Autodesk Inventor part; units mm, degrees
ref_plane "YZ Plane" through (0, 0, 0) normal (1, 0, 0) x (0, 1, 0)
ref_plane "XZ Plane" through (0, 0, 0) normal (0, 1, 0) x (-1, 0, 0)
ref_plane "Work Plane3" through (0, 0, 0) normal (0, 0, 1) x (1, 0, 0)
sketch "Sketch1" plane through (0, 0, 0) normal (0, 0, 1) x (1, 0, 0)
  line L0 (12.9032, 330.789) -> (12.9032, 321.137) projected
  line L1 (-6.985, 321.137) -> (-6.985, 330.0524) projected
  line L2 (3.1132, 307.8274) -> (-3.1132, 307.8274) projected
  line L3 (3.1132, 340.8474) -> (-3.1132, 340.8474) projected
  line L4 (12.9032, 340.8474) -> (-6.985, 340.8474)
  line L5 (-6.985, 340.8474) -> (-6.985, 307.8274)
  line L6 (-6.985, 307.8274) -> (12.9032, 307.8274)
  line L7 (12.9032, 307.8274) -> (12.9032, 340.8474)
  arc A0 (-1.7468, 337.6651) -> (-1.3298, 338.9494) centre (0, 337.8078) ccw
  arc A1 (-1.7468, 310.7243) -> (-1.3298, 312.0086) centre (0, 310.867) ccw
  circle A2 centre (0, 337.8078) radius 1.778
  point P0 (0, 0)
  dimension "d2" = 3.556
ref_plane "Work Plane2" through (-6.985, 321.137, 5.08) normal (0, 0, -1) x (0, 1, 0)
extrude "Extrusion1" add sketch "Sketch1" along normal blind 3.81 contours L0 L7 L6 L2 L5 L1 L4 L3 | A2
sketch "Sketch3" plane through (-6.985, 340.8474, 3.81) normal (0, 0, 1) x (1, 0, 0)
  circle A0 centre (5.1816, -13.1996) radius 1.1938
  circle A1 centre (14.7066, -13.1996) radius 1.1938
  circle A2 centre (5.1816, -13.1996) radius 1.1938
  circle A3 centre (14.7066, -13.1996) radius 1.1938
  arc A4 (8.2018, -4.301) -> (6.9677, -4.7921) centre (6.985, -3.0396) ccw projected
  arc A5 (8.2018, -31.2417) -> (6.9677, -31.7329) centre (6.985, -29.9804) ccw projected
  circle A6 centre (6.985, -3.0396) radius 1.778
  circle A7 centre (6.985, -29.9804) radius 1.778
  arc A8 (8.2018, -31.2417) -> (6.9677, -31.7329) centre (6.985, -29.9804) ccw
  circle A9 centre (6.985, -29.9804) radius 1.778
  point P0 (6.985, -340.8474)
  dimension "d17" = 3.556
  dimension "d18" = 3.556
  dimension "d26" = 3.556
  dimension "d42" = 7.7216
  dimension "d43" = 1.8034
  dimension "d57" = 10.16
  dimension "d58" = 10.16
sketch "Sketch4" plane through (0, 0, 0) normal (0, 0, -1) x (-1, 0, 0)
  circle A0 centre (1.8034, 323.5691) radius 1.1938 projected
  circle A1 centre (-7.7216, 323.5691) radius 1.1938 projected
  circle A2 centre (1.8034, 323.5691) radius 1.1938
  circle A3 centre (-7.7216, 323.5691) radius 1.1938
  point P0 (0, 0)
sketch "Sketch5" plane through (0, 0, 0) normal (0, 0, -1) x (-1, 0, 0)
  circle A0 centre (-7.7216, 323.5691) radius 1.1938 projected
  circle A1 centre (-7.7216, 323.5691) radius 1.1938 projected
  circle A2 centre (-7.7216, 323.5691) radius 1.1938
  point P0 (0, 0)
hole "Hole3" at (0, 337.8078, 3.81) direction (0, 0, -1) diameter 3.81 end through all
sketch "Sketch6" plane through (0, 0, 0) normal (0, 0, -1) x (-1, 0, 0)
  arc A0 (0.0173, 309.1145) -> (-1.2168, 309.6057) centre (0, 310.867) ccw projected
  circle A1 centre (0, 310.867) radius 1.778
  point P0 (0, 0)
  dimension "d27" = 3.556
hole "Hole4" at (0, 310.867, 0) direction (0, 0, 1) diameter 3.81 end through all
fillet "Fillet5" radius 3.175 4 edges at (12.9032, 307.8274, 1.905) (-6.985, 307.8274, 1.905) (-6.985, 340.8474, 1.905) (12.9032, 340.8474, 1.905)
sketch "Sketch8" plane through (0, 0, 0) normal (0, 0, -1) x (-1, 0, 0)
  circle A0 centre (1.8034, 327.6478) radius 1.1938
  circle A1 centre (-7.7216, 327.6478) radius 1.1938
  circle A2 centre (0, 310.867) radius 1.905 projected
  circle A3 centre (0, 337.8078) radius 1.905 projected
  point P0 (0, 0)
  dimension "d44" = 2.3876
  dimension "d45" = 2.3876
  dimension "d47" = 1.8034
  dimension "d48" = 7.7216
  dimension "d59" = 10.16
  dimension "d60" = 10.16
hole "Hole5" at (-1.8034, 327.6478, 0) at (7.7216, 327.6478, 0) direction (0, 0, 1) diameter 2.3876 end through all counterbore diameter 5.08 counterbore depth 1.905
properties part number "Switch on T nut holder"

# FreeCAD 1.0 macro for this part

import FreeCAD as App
import Part
import Sketcher
from FreeCAD import Vector
Q = App.Units.Quantity


def edges_at(feature, points):
    """Names of the edges that pass closest to the given points."""
    edges = feature.Shape.Edges
    near = lambda p: min(range(len(edges)), key=lambda i: edges[i].distToShape(Part.Vertex(*p))[0])
    return sorted({f"Edge{near(p) + 1}" for p in points})

doc = App.newDocument("Part")
body = doc.addObject("PartDesign::Body", "Body")

# Sketch on XY plane
sketch1 = body.newObject("Sketcher::SketchObject", "Sketch")
sketch1.AttachmentSupport = (doc.getObject("XY_Plane"), [""])
sketch1.MapMode = "FlatFace"
sketch1.addGeometry([
    Part.LineSegment(Vector(12.9032, 340.8474, 0), Vector(-6.985, 340.8474, 0)),
    Part.LineSegment(Vector(-6.985, 340.8474, 0), Vector(-6.985, 307.8274, 0)),
    Part.LineSegment(Vector(-6.985, 307.8274, 0), Vector(12.9032, 307.8274, 0)),
    Part.LineSegment(Vector(12.9032, 307.8274, 0), Vector(12.9032, 340.8474, 0)),
], False)
sketch1.addConstraint([
    Sketcher.Constraint("Coincident", 0, 2, 1, 1),
    Sketcher.Constraint("Coincident", 1, 2, 2, 1),
    Sketcher.Constraint("Coincident", 2, 2, 3, 1),
    Sketcher.Constraint("Coincident", 3, 2, 0, 1),
    Sketcher.Constraint("Horizontal", 0),
    Sketcher.Constraint("Vertical", 1),
    Sketcher.Constraint("Horizontal", 2),
    Sketcher.Constraint("Vertical", 3),
    Sketcher.Constraint("DistanceY", 1, 2, 1, 1, Q("1.3 in")),
    Sketcher.Constraint("DistanceX", 0, 2, 0, 1, Q("0.783 in")),
    Sketcher.Constraint("DistanceX", 0, 2, -1, 1, Q("0.275 in")),
    Sketcher.Constraint("DistanceY", -1, 1, 0, 2, Q("13.4192 in")),
])
pad1 = body.newObject("PartDesign::Pad", "Pad")
pad1.Profile = sketch1
pad1.Length = Q("0.15 in")

# Sketch on XY plane
sketch2 = body.newObject("Sketcher::SketchObject", "Sketch001")
sketch2.AttachmentSupport = (doc.getObject("XY_Plane"), [""])
sketch2.MapMode = "FlatFace"
sketch2.AttachmentOffset = App.Placement(Vector(0, 0, 0.15 * 25.4), App.Rotation())
sketch2.addGeometry(Part.Circle(Vector(0, 337.8078, 0), Vector(0, 0, 1), 1.905), False)
sketch2.addConstraint([
    Sketcher.Constraint("PointOnObject", 0, 3, -2),
    Sketcher.Constraint("Diameter", 0, Q("0.15 in")),
    Sketcher.Constraint("DistanceY", -1, 1, 0, 3, Q("337.8078 mm")),
])
doc.recompute()
hole = body.newObject("PartDesign::Hole", "Hole")
hole.Profile = sketch2
hole.ThreadType = "None"
hole.Diameter = Q("0.15 in")
hole.DepthType = "ThroughAll"

# Sketch on XY plane
sketch3 = body.newObject("Sketcher::SketchObject", "Sketch002")
sketch3.AttachmentSupport = (doc.getObject("XY_Plane"), [""])
sketch3.MapMode = "FlatFace"
sketch3.addGeometry(Part.Circle(Vector(0, 310.867, 0), Vector(0, 0, 1), 1.905), False)
sketch3.addConstraint([
    Sketcher.Constraint("PointOnObject", 0, 3, -2),
    Sketcher.Constraint("Diameter", 0, Q("0.15 in")),
    Sketcher.Constraint("DistanceY", -1, 1, 0, 3, Q("310.867 mm")),
])
doc.recompute()
hole2 = body.newObject("PartDesign::Hole", "Hole001")
hole2.Profile = sketch3
hole2.ThreadType = "None"
hole2.Diameter = Q("0.15 in")
hole2.DepthType = "ThroughAll"
hole2.Reversed = True
doc.recompute()

fillet = body.newObject("PartDesign::Fillet", "Fillet")
fillet.Base = (hole2, edges_at(hole2, [
    (12.903, 307.827, 1.905),
    (-6.985, 307.827, 1.905),
    (-6.985, 340.847, 1.905),
    (12.903, 340.847, 1.905),
]))
fillet.Radius = Q("0.125 in")

# Sketch on XY plane
sketch4 = body.newObject("Sketcher::SketchObject", "Sketch003")
sketch4.AttachmentSupport = (doc.getObject("XY_Plane"), [""])
sketch4.MapMode = "FlatFace"
sketch4.addGeometry([
    Part.Circle(Vector(-1.8034, 327.6478, 0), Vector(0, 0, 1), 1.1938),
    Part.Circle(Vector(7.7216, 327.6478, 0), Vector(0, 0, 1), 1.1938),
], False)
sketch4.addConstraint([
    Sketcher.Constraint("Equal", 0, 1),
    Sketcher.Constraint("Horizontal", 0, 3, 1, 3),
    Sketcher.Constraint("Diameter", 0, Q("0.094 in")),
    Sketcher.Constraint("DistanceX", 0, 3, -1, 1, Q("0.071 in")),
    Sketcher.Constraint("DistanceX", -1, 1, 1, 3, Q("0.304 in")),
    Sketcher.Constraint("DistanceY", -1, 1, 0, 3, Q("327.6478 mm")),
])
doc.recompute()
hole3 = body.newObject("PartDesign::Hole", "Hole002")
hole3.Profile = sketch4
hole3.ThreadType = "None"
hole3.Diameter = Q("0.094 in")
hole3.DepthType = "ThroughAll"
hole3.HoleCutType = "Counterbore"
hole3.HoleCutDiameter = Q("0.2 in")
hole3.HoleCutDepth = Q("0.075 in")
hole3.Reversed = True

doc.recompute()
